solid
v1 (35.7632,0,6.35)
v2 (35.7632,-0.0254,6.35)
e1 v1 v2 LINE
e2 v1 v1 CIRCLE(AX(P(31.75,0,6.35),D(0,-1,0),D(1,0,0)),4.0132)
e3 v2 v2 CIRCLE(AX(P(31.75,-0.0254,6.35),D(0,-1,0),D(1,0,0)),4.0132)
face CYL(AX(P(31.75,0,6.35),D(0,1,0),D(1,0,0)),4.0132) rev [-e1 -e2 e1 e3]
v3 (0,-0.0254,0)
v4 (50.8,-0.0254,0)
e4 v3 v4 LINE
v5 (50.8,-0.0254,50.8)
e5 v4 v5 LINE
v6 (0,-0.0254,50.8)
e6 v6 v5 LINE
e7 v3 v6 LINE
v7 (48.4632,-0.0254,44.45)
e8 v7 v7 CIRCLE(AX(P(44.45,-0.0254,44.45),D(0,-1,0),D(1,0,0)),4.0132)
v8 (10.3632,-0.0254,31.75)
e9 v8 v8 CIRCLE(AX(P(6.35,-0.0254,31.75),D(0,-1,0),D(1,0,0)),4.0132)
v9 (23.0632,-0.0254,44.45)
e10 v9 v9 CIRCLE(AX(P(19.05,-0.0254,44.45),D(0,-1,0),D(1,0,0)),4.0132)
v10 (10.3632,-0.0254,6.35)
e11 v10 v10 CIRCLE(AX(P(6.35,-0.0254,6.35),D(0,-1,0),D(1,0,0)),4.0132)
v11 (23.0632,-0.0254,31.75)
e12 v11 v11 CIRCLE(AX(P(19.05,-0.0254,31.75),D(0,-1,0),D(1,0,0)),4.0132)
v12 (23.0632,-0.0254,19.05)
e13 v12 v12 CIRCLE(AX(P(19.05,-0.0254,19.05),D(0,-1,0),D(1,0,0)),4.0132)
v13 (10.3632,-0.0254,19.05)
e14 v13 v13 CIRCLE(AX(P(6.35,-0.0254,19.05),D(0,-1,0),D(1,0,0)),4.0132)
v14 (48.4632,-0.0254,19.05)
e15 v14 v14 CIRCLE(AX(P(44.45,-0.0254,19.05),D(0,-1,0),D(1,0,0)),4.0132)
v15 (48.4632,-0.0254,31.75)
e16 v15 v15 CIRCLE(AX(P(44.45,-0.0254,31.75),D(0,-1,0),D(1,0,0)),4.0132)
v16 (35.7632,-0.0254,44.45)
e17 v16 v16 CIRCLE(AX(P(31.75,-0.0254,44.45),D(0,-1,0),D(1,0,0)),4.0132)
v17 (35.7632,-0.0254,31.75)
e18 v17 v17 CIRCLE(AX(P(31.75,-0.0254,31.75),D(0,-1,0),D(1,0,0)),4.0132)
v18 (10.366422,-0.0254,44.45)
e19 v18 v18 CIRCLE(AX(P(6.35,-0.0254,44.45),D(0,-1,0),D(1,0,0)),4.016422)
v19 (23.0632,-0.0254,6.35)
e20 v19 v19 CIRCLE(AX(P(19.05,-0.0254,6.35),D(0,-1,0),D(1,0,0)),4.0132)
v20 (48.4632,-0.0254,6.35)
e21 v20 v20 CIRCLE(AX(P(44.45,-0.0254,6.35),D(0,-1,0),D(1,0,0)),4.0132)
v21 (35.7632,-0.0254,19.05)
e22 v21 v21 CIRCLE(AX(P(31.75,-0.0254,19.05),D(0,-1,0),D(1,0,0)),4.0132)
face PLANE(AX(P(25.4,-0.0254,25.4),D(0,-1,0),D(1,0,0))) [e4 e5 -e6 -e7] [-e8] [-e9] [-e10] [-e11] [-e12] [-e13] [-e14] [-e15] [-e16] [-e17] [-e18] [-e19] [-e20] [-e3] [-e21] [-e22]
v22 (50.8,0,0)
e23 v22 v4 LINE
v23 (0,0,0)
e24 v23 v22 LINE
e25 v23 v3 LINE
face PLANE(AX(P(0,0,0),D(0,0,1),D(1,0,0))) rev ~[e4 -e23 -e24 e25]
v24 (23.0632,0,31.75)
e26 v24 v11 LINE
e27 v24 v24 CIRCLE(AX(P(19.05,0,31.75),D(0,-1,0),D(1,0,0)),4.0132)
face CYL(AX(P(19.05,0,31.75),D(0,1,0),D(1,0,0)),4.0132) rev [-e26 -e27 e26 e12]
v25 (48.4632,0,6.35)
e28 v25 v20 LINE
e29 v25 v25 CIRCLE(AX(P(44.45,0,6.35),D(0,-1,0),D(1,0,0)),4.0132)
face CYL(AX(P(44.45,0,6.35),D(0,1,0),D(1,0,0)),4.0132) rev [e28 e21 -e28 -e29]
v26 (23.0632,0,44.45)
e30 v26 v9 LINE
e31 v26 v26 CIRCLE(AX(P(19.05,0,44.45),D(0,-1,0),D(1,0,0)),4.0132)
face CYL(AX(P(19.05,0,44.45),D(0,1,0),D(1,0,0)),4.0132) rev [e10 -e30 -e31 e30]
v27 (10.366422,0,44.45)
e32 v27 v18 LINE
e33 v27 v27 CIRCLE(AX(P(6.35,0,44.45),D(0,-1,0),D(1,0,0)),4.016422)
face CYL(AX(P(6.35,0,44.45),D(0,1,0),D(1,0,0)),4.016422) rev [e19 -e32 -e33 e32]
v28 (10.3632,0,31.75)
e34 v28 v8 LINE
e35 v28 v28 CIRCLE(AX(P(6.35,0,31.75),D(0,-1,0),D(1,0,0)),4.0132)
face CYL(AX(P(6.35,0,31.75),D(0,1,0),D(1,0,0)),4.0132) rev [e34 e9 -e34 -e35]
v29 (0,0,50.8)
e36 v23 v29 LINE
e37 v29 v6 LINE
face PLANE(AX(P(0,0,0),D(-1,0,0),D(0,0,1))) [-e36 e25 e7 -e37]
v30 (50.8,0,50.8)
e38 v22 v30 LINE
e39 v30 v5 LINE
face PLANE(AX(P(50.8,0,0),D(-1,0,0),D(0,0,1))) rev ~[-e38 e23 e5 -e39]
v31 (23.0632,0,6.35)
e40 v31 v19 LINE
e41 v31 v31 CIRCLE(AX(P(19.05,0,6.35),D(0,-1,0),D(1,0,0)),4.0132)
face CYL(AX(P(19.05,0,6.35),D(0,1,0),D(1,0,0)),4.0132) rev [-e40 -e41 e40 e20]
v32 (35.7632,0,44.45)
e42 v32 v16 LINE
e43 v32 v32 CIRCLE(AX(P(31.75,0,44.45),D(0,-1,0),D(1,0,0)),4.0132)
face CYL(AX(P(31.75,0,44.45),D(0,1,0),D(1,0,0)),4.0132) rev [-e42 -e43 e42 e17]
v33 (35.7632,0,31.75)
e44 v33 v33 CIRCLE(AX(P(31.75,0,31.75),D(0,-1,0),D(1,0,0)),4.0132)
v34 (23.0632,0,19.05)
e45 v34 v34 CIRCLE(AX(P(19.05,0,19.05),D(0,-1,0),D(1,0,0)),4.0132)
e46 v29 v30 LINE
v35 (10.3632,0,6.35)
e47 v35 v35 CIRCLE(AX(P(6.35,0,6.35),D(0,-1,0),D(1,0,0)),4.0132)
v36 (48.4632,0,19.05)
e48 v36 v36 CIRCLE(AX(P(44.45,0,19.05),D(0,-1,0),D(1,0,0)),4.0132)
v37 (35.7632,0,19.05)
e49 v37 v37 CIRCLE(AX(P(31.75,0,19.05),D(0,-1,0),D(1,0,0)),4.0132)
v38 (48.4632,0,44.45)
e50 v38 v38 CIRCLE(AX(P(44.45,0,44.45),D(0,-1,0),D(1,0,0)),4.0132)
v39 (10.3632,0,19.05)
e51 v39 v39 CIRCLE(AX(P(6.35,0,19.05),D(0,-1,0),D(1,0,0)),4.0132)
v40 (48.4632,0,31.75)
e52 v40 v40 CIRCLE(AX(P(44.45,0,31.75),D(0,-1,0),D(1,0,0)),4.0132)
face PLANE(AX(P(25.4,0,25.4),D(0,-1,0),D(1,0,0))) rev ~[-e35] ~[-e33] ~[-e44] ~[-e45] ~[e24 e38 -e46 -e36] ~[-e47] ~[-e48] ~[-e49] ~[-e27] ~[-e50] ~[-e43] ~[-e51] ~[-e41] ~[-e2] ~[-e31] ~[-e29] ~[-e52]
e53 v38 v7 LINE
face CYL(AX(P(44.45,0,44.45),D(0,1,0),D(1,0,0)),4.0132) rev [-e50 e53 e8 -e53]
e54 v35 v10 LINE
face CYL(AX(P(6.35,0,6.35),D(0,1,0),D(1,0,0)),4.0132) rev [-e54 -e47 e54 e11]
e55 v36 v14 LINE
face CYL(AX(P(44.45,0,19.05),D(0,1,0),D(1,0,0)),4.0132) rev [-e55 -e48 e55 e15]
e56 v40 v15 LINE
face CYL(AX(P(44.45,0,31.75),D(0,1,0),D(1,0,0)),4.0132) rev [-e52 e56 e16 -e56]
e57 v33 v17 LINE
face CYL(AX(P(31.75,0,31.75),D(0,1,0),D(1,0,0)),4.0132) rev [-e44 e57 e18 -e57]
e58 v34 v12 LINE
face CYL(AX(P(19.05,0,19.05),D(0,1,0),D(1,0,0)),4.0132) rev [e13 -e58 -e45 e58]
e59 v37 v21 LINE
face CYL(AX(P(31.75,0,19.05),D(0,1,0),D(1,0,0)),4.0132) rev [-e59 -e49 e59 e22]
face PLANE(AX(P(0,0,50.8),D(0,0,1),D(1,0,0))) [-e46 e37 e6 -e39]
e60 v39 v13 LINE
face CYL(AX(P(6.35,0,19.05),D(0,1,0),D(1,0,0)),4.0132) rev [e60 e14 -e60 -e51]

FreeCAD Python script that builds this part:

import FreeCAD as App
import Part
import Sketcher
from FreeCAD import Vector
Q = App.Units.Quantity

doc = App.newDocument("Part")
params = doc.addObject("Spreadsheet::Sheet", "Params")
for row, (alias, value) in enumerate([
    ("sketch1_width", "2 in"),
    ("sketch1_diameter", "0.316 in"),
    ("pad1_length", "0.001 in"),
], start=1):
    params.set(f"A{row}", alias)
    params.set(f"B{row}", "=" + value)
    params.setAlias(f"B{row}", alias)

body = doc.addObject("PartDesign::Body", "Body")

# Sketch on XZ plane
sketch1 = body.newObject("Sketcher::SketchObject", "Sketch")
sketch1.AttachmentSupport = (doc.getObject("XZ_Plane"), [""])
sketch1.MapMode = "FlatFace"
sketch1.addGeometry(Part.LineSegment(Vector(0, 50.8, 0), Vector(0, 0, 0)), False)
sketch1.addGeometry(Part.LineSegment(Vector(0, 0, 0), Vector(50.8, 0, 0)), False)
sketch1.addGeometry(Part.LineSegment(Vector(50.8, 0, 0), Vector(50.8, 50.8, 0)), False)
sketch1.addGeometry(Part.LineSegment(Vector(50.8, 50.8, 0), Vector(0, 50.8, 0)), False)
sketch1.addGeometry(Part.Circle(Vector(6.3, 6.3, 0), Vector(0, 0, 1), 4), False)
sketch1.addGeometry(Part.Circle(Vector(19.1, 6.3, 0), Vector(0, 0, 1), 4), False)
sketch1.addGeometry(Part.Circle(Vector(6.3, 19.1, 0), Vector(0, 0, 1), 4), False)
sketch1.addGeometry(Part.Circle(Vector(19.1, 19.1, 0), Vector(0, 0, 1), 4), False)
sketch1.addGeometry(Part.Circle(Vector(31.8, 6.3, 0), Vector(0, 0, 1), 4), False)
sketch1.addGeometry(Part.Circle(Vector(44.5, 6.3, 0), Vector(0, 0, 1), 4), False)
sketch1.addGeometry(Part.Circle(Vector(31.8, 19.1, 0), Vector(0, 0, 1), 4), False)
sketch1.addGeometry(Part.Circle(Vector(44.5, 19.1, 0), Vector(0, 0, 1), 4), False)
sketch1.addGeometry(Part.Circle(Vector(6.3, 31.8, 0), Vector(0, 0, 1), 4), False)
sketch1.addGeometry(Part.Circle(Vector(19.1, 31.8, 0), Vector(0, 0, 1), 4), False)
sketch1.addGeometry(Part.Circle(Vector(6.3, 44.5, 0), Vector(0, 0, 1), 4), False)
sketch1.addGeometry(Part.Circle(Vector(19.1, 44.5, 0), Vector(0, 0, 1), 4), False)
sketch1.addGeometry(Part.Circle(Vector(31.8, 31.8, 0), Vector(0, 0, 1), 4), False)
sketch1.addGeometry(Part.Circle(Vector(44.5, 31.8, 0), Vector(0, 0, 1), 4), False)
sketch1.addGeometry(Part.Circle(Vector(31.8, 44.5, 0), Vector(0, 0, 1), 4), False)
sketch1.addGeometry(Part.Circle(Vector(44.5, 44.5, 0), Vector(0, 0, 1), 4), False)
sketch1.addConstraint(Sketcher.Constraint("Coincident", 0, 2, 1, 1))
sketch1.addConstraint(Sketcher.Constraint("Coincident", 1, 2, 2, 1))
sketch1.addConstraint(Sketcher.Constraint("Coincident", 2, 2, 3, 1))
sketch1.addConstraint(Sketcher.Constraint("Coincident", 3, 2, 0, 1))
sketch1.addConstraint(Sketcher.Constraint("Vertical", 0))
sketch1.addConstraint(Sketcher.Constraint("Horizontal", 1))
sketch1.addConstraint(Sketcher.Constraint("Vertical", 2))
sketch1.addConstraint(Sketcher.Constraint("Horizontal", 3))
sketch1.addConstraint(Sketcher.Constraint("Coincident", 0, 2, -1, 1))
sketch1.addConstraint(Sketcher.Constraint("Equal", 4, 5))
sketch1.addConstraint(Sketcher.Constraint("Equal", 5, 6))
sketch1.addConstraint(Sketcher.Constraint("Equal", 6, 7))
sketch1.addConstraint(Sketcher.Constraint("Equal", 7, 8))
sketch1.addConstraint(Sketcher.Constraint("Equal", 8, 9))
sketch1.addConstraint(Sketcher.Constraint("Equal", 9, 10))
sketch1.addConstraint(Sketcher.Constraint("Equal", 10, 11))
sketch1.addConstraint(Sketcher.Constraint("Equal", 11, 12))
sketch1.addConstraint(Sketcher.Constraint("Equal", 12, 13))
sketch1.addConstraint(Sketcher.Constraint("Equal", 13, 15))
sketch1.addConstraint(Sketcher.Constraint("Equal", 15, 16))
sketch1.addConstraint(Sketcher.Constraint("Equal", 16, 17))
sketch1.addConstraint(Sketcher.Constraint("Equal", 17, 18))
sketch1.addConstraint(Sketcher.Constraint("Equal", 18, 19))
sketch1.addConstraint(Sketcher.Constraint("Horizontal", 4, 3, 5, 3))
sketch1.addConstraint(Sketcher.Constraint("Horizontal", 6, 3, 7, 3))
sketch1.addConstraint(Sketcher.Constraint("Horizontal", 5, 3, 8, 3))
sketch1.addConstraint(Sketcher.Constraint("Horizontal", 8, 3, 9, 3))
sketch1.addConstraint(Sketcher.Constraint("Horizontal", 7, 3, 10, 3))
sketch1.addConstraint(Sketcher.Constraint("Horizontal", 10, 3, 11, 3))
sketch1.addConstraint(Sketcher.Constraint("Horizontal", 12, 3, 13, 3))
sketch1.addConstraint(Sketcher.Constraint("Horizontal", 14, 3, 15, 3))
sketch1.addConstraint(Sketcher.Constraint("Horizontal", 13, 3, 16, 3))
sketch1.addConstraint(Sketcher.Constraint("Horizontal", 16, 3, 17, 3))
sketch1.addConstraint(Sketcher.Constraint("Horizontal", 15, 3, 18, 3))
sketch1.addConstraint(Sketcher.Constraint("Horizontal", 18, 3, 19, 3))
sketch1.addConstraint(Sketcher.Constraint("Vertical", 4, 3, 6, 3))
sketch1.addConstraint(Sketcher.Constraint("Vertical", 5, 3, 7, 3))
sketch1.addConstraint(Sketcher.Constraint("Vertical", 8, 3, 10, 3))
sketch1.addConstraint(Sketcher.Constraint("Vertical", 9, 3, 11, 3))
sketch1.addConstraint(Sketcher.Constraint("Vertical", 6, 3, 12, 3))
sketch1.addConstraint(Sketcher.Constraint("Vertical", 7, 3, 13, 3))
sketch1.addConstraint(Sketcher.Constraint("Vertical", 12, 3, 14, 3))
sketch1.addConstraint(Sketcher.Constraint("Vertical", 13, 3, 15, 3))
sketch1.addConstraint(Sketcher.Constraint("Vertical", 10, 3, 16, 3))
sketch1.addConstraint(Sketcher.Constraint("Vertical", 11, 3, 17, 3))
sketch1.addConstraint(Sketcher.Constraint("Vertical", 16, 3, 18, 3))
sketch1.addConstraint(Sketcher.Constraint("Vertical", 17, 3, 19, 3))
sketch1.addConstraint(Sketcher.Constraint("Equal", 3, 0))
sketch1.addConstraint(Sketcher.Constraint("DistanceX", 1, 1, 1, 2, Q("2 in")))
sketch1.addConstraint(Sketcher.Constraint("Diameter", 4, Q("0.316 in")))
sketch1.addConstraint(Sketcher.Constraint("DistanceX", 4, 3, 8, 3, Q("1 in")))
sketch1.addConstraint(Sketcher.Constraint("DistanceX", 5, 3, 9, 3, Q("1 in")))
sketch1.addConstraint(Sketcher.Constraint("DistanceY", 4, 3, 12, 3, Q("1 in")))
sketch1.addConstraint(Sketcher.Constraint("DistanceY", 6, 3, 14, 3, Q("1 in")))
sketch1.addConstraint(Sketcher.Constraint("DistanceX", 4, 3, 5, 3, Q("0.5 in")))
sketch1.addConstraint(Sketcher.Constraint("DistanceY", 4, 3, 6, 3, Q("0.5 in")))
sketch1.addConstraint(Sketcher.Constraint("DistanceX", -1, 1, 4, 3, Q("0.25 in")))
sketch1.addConstraint(Sketcher.Constraint("DistanceY", -1, 1, 4, 3, Q("0.25 in")))
sketch1.addConstraint(Sketcher.Constraint("Diameter", 14, 8.032844))
sketch1.setExpression("Constraints[48]", "Params.sketch1_width")
sketch1.setExpression("Constraints[49]", "Params.sketch1_diameter")
pad1 = body.newObject("PartDesign::Pad", "Pad")
pad1.Profile = sketch1
pad1.setExpression("Length", "Params.pad1_length")

doc.recompute()
